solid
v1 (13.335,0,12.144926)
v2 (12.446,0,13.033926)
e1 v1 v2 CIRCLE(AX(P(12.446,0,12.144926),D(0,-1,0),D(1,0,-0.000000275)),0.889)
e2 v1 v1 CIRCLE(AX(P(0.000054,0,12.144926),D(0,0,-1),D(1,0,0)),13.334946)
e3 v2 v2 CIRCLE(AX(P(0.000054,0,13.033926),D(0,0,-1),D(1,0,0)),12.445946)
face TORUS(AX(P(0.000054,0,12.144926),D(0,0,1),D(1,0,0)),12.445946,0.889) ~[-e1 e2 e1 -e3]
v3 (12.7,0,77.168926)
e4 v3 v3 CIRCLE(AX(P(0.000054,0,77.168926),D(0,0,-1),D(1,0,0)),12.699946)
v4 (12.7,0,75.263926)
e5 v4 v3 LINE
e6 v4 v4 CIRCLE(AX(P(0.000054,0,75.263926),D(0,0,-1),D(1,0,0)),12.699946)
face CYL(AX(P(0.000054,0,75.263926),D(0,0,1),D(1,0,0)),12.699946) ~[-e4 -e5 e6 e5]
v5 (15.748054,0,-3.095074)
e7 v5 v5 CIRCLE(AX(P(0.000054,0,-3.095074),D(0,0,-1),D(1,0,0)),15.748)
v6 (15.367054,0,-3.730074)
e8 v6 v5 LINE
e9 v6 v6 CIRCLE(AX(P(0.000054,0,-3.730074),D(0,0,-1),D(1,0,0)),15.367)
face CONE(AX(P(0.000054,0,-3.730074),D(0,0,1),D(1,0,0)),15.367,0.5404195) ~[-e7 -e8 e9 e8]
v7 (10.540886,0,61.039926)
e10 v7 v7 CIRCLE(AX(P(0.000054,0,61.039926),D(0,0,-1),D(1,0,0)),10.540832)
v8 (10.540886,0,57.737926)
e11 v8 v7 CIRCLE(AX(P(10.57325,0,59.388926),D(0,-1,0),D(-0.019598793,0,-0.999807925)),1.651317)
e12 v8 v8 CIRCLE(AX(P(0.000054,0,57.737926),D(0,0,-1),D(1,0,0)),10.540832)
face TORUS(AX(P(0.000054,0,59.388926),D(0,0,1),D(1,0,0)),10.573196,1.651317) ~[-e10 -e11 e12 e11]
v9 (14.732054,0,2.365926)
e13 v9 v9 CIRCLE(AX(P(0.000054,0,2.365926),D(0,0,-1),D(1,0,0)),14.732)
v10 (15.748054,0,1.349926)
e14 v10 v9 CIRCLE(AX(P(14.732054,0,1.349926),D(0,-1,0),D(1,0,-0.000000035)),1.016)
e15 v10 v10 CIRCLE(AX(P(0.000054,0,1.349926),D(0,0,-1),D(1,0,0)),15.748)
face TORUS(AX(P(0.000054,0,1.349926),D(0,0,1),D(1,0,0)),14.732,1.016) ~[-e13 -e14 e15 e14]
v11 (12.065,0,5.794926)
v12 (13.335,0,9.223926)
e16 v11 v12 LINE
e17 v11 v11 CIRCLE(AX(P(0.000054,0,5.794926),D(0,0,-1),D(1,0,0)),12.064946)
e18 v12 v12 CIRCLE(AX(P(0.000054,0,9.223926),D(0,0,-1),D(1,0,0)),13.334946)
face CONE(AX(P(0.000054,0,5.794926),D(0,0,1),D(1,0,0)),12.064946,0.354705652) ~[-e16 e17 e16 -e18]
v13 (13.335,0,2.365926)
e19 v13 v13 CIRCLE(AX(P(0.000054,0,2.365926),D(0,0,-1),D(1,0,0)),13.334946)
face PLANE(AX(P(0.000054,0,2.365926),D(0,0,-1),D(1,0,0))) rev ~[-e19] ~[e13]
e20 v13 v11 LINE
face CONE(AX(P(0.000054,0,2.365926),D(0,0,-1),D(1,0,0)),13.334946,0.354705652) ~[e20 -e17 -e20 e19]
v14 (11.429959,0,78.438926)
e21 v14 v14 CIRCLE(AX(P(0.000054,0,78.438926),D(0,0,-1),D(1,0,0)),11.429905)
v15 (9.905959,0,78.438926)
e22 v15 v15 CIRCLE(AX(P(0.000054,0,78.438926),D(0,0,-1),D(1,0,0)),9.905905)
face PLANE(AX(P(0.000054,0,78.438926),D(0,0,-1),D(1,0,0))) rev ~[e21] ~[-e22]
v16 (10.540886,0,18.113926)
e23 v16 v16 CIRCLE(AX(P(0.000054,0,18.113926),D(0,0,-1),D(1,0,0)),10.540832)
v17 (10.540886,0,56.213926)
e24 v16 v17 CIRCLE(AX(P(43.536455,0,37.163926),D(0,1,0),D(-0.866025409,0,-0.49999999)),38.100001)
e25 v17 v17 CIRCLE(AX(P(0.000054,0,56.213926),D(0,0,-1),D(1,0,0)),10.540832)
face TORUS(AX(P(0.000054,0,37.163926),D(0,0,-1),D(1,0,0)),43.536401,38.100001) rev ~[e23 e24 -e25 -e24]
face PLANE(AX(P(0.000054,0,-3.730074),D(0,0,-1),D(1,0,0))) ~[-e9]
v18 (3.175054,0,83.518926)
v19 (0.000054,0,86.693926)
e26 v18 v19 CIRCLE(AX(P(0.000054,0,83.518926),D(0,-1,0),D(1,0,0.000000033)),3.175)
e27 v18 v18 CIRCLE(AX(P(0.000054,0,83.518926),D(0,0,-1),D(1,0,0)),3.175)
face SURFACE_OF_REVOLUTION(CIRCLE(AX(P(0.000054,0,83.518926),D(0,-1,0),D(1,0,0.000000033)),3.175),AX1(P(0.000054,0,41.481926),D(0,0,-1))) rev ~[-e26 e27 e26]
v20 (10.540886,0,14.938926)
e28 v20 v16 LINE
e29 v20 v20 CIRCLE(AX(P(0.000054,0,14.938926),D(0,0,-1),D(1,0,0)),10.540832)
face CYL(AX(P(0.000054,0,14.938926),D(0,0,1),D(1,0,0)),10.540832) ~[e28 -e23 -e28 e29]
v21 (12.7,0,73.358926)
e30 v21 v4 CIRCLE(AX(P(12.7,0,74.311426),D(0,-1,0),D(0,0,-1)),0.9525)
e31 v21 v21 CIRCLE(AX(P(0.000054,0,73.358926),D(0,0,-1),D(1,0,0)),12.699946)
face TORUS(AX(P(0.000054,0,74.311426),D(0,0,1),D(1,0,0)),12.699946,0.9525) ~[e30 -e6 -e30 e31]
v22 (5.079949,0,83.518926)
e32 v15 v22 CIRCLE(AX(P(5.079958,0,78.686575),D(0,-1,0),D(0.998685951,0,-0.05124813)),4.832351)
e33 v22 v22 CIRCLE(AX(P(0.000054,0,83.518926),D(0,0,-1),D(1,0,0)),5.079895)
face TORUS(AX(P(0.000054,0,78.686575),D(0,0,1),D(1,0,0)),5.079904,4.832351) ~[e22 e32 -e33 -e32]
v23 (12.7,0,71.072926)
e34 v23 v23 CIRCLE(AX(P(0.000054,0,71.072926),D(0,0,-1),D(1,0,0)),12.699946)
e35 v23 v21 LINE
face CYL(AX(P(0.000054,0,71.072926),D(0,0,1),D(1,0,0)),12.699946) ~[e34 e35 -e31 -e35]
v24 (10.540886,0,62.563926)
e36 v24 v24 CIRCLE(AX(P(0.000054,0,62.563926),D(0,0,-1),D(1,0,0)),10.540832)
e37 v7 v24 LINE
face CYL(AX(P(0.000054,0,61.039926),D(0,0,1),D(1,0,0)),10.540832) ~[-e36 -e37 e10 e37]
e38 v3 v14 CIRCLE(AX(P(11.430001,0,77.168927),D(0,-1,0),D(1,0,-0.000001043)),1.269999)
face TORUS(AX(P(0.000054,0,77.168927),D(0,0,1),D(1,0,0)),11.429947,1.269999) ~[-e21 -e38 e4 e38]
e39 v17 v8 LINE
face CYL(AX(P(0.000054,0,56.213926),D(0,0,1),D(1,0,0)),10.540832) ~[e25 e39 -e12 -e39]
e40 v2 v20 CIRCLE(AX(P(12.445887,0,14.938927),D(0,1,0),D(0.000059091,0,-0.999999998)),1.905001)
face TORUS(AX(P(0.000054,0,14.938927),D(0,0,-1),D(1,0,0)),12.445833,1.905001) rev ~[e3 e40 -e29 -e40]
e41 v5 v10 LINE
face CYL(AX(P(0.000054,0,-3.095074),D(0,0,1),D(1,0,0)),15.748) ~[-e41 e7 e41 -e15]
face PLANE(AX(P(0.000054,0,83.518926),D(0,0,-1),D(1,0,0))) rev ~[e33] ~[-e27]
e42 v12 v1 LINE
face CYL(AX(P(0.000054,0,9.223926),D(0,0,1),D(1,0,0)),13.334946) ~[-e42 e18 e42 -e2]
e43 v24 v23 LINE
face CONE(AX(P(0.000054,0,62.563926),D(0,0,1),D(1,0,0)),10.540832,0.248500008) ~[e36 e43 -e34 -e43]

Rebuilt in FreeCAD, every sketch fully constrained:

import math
import FreeCAD as App
import Part
import Sketcher

V = App.Vector
Q = App.Units.Quantity

doc = App.newDocument("Part")
body = doc.addObject("PartDesign::Body", "Body")

# Sketch on XZ plane
sketch1 = body.newObject("Sketcher::SketchObject", "Sketch")
sketch1.AttachmentSupport = (doc.getObject("XZ_Plane"), [""])
sketch1.MapMode = "FlatFace"
sketch1.addGeometry([
    Part.LineSegment(V(0, -3.7, 0), V(15.4, -3.7, 0)),  # 0
    Part.LineSegment(V(15.4, -3.7, 0), V(15.7, -3.1, 0)),  # 1
    Part.LineSegment(V(15.7, -3.1, 0), V(15.7, 1.3, 0)),  # 2
    Part.ArcOfCircle(Part.Circle(V(14.7, 1.3, 0), V(0, 0, 1), 1), math.radians(0), math.radians(90)),  # 3
    Part.LineSegment(V(14.7, 2.4, 0), V(13.3, 2.4, 0)),  # 4
    Part.LineSegment(V(13.3, 2.4, 0), V(12.1, 5.8, 0)),  # 5
    Part.LineSegment(V(12.1, 5.8, 0), V(13.3, 9.2, 0)),  # 6
    Part.LineSegment(V(13.3, 9.2, 0), V(13.3, 12.1, 0)),  # 7
    Part.ArcOfCircle(Part.Circle(V(12.4, 12.1, 0), V(0, 0, 1), 0.9), math.radians(0), math.radians(90)),  # 8
    Part.ArcOfCircle(Part.Circle(V(12.4, 14.9, 0), V(0, 0, 1), 1.9), math.radians(-180), math.radians(-90)),  # 9
    Part.LineSegment(V(10.5, 14.9, 0), V(10.5, 18.1, 0)),  # 10
    Part.ArcOfCircle(Part.Circle(V(43.5, 37.2, 0), V(0, 0, 1), 38.1), math.radians(150), math.radians(210)),  # 11
    Part.LineSegment(V(10.5, 56.2, 0), V(10.5, 57.7, 0)),  # 12
    Part.ArcOfCircle(Part.Circle(V(10.6, 59.4, 0), V(0, 0, 1), 1.7), math.radians(-91), math.radians(91)),  # 13
    Part.LineSegment(V(10.5, 61, 0), V(10.5, 62.6, 0)),  # 14
    Part.LineSegment(V(10.5, 62.6, 0), V(12.7, 71.1, 0)),  # 15
    Part.LineSegment(V(12.7, 71.1, 0), V(12.7, 73.4, 0)),  # 16
    Part.ArcOfCircle(Part.Circle(V(12.7, 74.3, 0), V(0, 0, 1), 1), math.radians(-90), math.radians(90)),  # 17
    Part.LineSegment(V(12.7, 75.3, 0), V(12.7, 77.2, 0)),  # 18
    Part.ArcOfCircle(Part.Circle(V(11.4, 77.2, 0), V(0, 0, 1), 1.3), math.radians(0), math.radians(90)),  # 19
    Part.LineSegment(V(11.4, 78.4, 0), V(9.9, 78.4, 0)),  # 20
    Part.ArcOfCircle(Part.Circle(V(5.1, 78.7, 0), V(0, 0, 1), 4.8), math.radians(-3), math.radians(90)),  # 21
    Part.LineSegment(V(5.1, 83.5, 0), V(3.2, 83.5, 0)),  # 22
    Part.ArcOfCircle(Part.Circle(V(0, 83.5, 0), V(0, 0, 1), 3.2), math.radians(0), math.radians(90)),  # 23
    Part.LineSegment(V(0, 86.7, 0), V(0, -3.7, 0)),  # 24
], False)
sketch1.addGeometry(Part.LineSegment(V(0, 86.7, 0), V(0, -3.7, 0)), True)  # axis
sketch1.addConstraint([
    Sketcher.Constraint("Coincident", 0, 2, 1, 1),
    Sketcher.Constraint("Coincident", 1, 2, 2, 1),
    Sketcher.Constraint("Tangent", 2, 2, 3, 1),
    Sketcher.Constraint("Tangent", 3, 2, 4, 1),
    Sketcher.Constraint("Coincident", 4, 2, 5, 1),
    Sketcher.Constraint("Coincident", 5, 2, 6, 1),
    Sketcher.Constraint("Coincident", 6, 2, 7, 1),
    Sketcher.Constraint("Tangent", 7, 2, 8, 1),
    Sketcher.Constraint("Coincident", 8, 2, 9, 2),
    Sketcher.Constraint("Tangent", 9, 1, 10, 1),
    Sketcher.Constraint("Coincident", 10, 2, 11, 2),
    Sketcher.Constraint("Coincident", 11, 1, 12, 1),
    Sketcher.Constraint("Coincident", 12, 2, 13, 1),
    Sketcher.Constraint("Coincident", 13, 2, 14, 1),
    Sketcher.Constraint("Coincident", 14, 2, 15, 1),
    Sketcher.Constraint("Coincident", 15, 2, 16, 1),
    Sketcher.Constraint("Coincident", 16, 2, 17, 1),
    Sketcher.Constraint("Coincident", 17, 2, 18, 1),
    Sketcher.Constraint("Tangent", 18, 2, 19, 1),
    Sketcher.Constraint("Coincident", 19, 2, 20, 1),
    Sketcher.Constraint("Coincident", 20, 2, 21, 1),
    Sketcher.Constraint("Tangent", 21, 2, 22, 1),
    Sketcher.Constraint("Coincident", 22, 2, 23, 1),
    Sketcher.Constraint("Coincident", 23, 2, 24, 1),
    Sketcher.Constraint("Coincident", 24, 2, 0, 1),
    Sketcher.Constraint("Horizontal", 0),
    Sketcher.Constraint("Vertical", 2),
    Sketcher.Constraint("Horizontal", 4),
    Sketcher.Constraint("Vertical", 7),
    Sketcher.Constraint("Vertical", 10),
    Sketcher.Constraint("Vertical", 12),
    Sketcher.Constraint("Vertical", 14),
    Sketcher.Constraint("Vertical", 16),
    Sketcher.Constraint("Vertical", 18),
    Sketcher.Constraint("Horizontal", 20),
    Sketcher.Constraint("Horizontal", 22),
    Sketcher.Constraint("Vertical", 24),
    Sketcher.Constraint("Vertical", 25),
    Sketcher.Constraint("Coincident", 25, 1, 23, 2),
    Sketcher.Constraint("Horizontal", 23, 3, 21, 2),
    Sketcher.Constraint("Horizontal", 0, 2, 25, 2),
    Sketcher.Constraint("Vertical", 4, 2, 6, 2),
    Sketcher.Constraint("Vertical", 10, 2, 11, 1),
    Sketcher.Constraint("Vertical", 12, 2, 13, 2),
    Sketcher.Constraint("Vertical", 17, 3, 15, 2),
    Sketcher.Constraint("Vertical", 16, 2, 17, 2),
    Sketcher.Constraint("Equal", 20, 12),
    Sketcher.Constraint("Equal", 12, 14),
    Sketcher.Constraint("Equal", 5, 6),
    Sketcher.Constraint("Radius", 11, Q("1.5 in")),
    Sketcher.Constraint("Radius", 3, Q("0.04 in")),
    Sketcher.Constraint("Radius", 19, Q("0.0499999 in")),
    Sketcher.Constraint("Radius", 8, Q("0.035 in")),
    Sketcher.Constraint("Radius", 9, Q("0.0750001 in")),
    Sketcher.Constraint("Radius", 23, Q("0.125 in")),
    Sketcher.Constraint("DistanceX", 20, 2, 20, 1, Q("0.06 in")),
    Sketcher.Constraint("DistanceY", 16, 1, 16, 2, Q("0.09 in")),
    Sketcher.Constraint("DistanceY", 24, 2, 24, 1, Q("3.56 in")),
    Sketcher.Constraint("DistanceX", -1, 1, 17, 3, Q("0.5 in")),
    Sketcher.Constraint("Radius", 17, Q("0.0375 in")),
    Sketcher.Constraint("DistanceY", 13, 3, 19, 3, Q("0.7000001 in")),
    Sketcher.Constraint("DistanceY", 0, 2, 3, 3, Q("0.2 in")),
    Sketcher.Constraint("DistanceY", 1, 2, 8, 3, Q("0.6 in")),
    Sketcher.Constraint("DistanceY", 8, 2, 10, 2, Q("0.2 in")),
    Sketcher.Constraint("DistanceY", 16, 2, 19, 2, Q("0.2 in")),
    Sketcher.Constraint("DistanceY", 20, 2, 21, 2, Q("0.2 in")),
    Sketcher.Constraint("DistanceX", 0, 1, 0, 2, Q("0.605 in")),
    Sketcher.Constraint("DistanceY", 2, 1, 2, 2, Q("0.175 in")),
    Sketcher.Constraint("DistanceY", 7, 1, 7, 2, Q("0.115 in")),
    Sketcher.Constraint("DistanceX", -1, 1, 8, 3, Q("0.49 in")),
    Sketcher.Constraint("DistanceX", -1, 1, 8, 2, Q("0.49 in")),
    Sketcher.Constraint("DistanceY", 3, 3, 11, 3, Q("1.41 in")),
    Sketcher.Constraint("DistanceX", 5, 2, 4, 2, Q("0.05 in")),
    Sketcher.Constraint("DistanceX", 21, 3, 20, 2, Q("0.19 in")),
    Sketcher.Constraint("DistanceX", 24, 2, 3, 3, Q("0.58 in")),
    Sketcher.Constraint("DistanceX", 23, 2, 22, 2, Q("0.125 in")),
    Sketcher.Constraint("Radius", 13, Q("1.651317 mm")),
    Sketcher.Constraint("DistanceX", 3, 3, 11, 3, Q("28.804401 mm")),
    Sketcher.Constraint("Distance", 15, Q("8.778659 mm")),
    Sketcher.Constraint("DistanceX", 22, 2, 22, 1, Q("1.904895 mm")),
    Sketcher.Constraint("DistanceY", -1, 1, 3, 3, Q("1.349926 mm")),
])
revolution = body.newObject("PartDesign::Revolution", "Revolution")
revolution.Profile = sketch1
revolution.ReferenceAxis = (sketch1, ["Axis0"])
revolution.Angle = 360

doc.recompute()
